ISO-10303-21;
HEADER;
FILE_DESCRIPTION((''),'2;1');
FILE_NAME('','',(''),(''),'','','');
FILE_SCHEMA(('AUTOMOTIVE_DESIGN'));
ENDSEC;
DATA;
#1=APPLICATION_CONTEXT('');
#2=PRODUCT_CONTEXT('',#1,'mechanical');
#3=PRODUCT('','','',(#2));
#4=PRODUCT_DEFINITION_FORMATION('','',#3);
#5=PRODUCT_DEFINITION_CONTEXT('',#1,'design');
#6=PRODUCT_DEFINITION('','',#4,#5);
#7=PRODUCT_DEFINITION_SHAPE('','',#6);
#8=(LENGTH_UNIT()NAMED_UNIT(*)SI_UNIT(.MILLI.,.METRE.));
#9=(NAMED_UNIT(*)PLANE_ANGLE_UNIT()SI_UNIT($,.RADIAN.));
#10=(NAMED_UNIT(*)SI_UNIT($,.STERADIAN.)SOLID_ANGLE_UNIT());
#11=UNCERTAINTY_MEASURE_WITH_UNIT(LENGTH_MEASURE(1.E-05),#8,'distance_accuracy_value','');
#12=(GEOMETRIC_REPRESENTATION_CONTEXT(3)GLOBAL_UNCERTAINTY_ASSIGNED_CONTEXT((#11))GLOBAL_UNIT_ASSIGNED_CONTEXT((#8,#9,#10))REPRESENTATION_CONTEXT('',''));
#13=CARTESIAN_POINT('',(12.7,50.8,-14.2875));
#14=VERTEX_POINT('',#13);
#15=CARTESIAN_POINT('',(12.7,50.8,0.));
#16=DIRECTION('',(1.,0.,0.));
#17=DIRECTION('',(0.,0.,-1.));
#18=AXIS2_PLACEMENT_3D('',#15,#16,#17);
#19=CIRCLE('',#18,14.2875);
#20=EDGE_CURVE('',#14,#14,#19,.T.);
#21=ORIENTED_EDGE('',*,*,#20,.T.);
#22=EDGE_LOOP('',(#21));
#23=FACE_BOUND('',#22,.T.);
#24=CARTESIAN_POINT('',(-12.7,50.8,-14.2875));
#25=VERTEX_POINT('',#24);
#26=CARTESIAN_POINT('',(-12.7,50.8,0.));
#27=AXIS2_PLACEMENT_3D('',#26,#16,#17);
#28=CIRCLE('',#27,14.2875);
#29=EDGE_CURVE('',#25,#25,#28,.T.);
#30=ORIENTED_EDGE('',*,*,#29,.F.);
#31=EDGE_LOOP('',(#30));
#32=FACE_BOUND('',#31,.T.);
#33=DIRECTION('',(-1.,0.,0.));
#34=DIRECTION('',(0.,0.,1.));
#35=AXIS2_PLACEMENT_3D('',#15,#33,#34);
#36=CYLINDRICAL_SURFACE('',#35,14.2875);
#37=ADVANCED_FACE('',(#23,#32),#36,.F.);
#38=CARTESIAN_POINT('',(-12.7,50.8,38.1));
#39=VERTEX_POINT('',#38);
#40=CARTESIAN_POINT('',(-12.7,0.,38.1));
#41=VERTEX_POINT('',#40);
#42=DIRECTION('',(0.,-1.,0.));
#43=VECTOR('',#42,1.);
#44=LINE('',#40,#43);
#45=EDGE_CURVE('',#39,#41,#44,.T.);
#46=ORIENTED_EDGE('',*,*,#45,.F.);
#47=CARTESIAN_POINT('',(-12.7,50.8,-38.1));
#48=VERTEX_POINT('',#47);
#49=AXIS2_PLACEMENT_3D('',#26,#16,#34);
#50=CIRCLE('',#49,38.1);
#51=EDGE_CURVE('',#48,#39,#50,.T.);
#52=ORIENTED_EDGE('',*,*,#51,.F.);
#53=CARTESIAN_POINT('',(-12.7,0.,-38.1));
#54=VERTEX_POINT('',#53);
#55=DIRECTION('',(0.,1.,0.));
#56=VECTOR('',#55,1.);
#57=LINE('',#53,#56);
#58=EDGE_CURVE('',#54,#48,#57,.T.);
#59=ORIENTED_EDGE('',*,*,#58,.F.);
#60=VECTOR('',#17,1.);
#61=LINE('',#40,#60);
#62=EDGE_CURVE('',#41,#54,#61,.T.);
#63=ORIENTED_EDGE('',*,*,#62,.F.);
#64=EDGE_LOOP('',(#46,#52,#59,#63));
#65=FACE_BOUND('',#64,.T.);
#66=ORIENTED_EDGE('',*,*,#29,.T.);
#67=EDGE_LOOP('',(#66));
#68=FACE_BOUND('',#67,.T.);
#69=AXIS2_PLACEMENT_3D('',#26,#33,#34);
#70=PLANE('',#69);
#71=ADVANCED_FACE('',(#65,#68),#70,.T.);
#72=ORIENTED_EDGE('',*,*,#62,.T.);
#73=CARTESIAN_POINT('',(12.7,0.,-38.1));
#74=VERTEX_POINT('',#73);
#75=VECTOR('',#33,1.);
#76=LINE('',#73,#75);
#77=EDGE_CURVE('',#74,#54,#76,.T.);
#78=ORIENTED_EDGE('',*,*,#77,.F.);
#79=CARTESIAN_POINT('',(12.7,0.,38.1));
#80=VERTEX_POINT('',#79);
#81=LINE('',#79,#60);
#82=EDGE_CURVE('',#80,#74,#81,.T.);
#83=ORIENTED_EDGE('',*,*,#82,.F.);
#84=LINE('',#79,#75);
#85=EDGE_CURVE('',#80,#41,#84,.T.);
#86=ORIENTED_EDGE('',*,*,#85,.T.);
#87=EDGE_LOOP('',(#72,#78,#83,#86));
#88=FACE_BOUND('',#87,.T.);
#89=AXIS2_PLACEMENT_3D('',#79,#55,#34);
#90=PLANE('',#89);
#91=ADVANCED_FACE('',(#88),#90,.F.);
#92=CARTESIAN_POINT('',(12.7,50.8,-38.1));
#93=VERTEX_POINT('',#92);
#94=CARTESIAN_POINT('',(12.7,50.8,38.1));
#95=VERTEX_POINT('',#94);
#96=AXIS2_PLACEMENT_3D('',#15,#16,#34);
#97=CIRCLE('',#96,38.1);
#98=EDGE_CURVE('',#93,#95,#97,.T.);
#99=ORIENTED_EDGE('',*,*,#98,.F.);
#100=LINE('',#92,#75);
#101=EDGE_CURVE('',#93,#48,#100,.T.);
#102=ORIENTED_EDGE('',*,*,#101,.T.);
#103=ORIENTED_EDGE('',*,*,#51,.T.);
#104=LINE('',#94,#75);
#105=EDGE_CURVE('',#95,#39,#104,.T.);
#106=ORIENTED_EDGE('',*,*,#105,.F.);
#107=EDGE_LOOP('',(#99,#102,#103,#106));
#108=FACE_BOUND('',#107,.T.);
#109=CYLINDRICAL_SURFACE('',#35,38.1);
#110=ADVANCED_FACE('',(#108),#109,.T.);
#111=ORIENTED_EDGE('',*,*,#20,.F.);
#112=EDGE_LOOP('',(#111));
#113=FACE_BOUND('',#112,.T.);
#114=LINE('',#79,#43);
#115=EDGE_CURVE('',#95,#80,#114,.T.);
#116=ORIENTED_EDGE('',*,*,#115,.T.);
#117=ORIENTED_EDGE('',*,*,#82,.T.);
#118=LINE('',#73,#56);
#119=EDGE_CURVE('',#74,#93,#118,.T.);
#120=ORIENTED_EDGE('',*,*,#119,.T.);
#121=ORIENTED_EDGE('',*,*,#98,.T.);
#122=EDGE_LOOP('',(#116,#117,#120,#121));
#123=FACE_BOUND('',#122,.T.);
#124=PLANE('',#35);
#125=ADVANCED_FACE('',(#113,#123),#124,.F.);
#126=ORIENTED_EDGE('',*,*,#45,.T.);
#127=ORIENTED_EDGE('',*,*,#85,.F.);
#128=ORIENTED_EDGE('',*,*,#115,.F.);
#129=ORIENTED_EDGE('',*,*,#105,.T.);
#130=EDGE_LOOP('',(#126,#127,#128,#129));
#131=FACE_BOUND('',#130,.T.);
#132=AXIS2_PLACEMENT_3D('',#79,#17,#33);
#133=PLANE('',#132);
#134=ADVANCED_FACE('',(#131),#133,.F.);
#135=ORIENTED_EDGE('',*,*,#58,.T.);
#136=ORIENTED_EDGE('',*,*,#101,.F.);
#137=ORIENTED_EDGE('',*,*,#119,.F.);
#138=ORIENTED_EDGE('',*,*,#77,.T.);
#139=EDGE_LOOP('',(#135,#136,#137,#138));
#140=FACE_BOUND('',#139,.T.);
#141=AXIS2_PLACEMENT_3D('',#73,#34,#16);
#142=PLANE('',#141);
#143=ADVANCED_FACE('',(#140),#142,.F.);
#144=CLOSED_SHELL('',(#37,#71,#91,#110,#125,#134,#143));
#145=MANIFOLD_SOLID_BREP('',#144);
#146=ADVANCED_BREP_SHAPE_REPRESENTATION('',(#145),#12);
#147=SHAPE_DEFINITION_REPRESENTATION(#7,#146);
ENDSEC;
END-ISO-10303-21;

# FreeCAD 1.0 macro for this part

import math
import FreeCAD as App
import Part
import Sketcher
Q = App.Units.Quantity

doc = App.newDocument("Part")
body = doc.addObject("PartDesign::Body", "Body")

sketch1 = body.newObject("Sketcher::SketchObject", "Sketch")
sketch1.AttachmentSupport = (doc.getObject("YZ_Plane"), [""])
sketch1.MapMode = "FlatFace"
sketch1.addGeometry(Part.LineSegment(App.Vector(0, 38.1, 0), App.Vector(0, -38.1, 0)), False)
sketch1.addGeometry(Part.LineSegment(App.Vector(0, -38.1, 0), App.Vector(50.8, -38.1, 0)), False)
sketch1.addGeometry(Part.ArcOfCircle(Part.Circle(App.Vector(50.8, 0, 0), App.Vector(0, 0, 1), 38.1), math.radians(-90), math.radians(90)), False)
sketch1.addGeometry(Part.LineSegment(App.Vector(50.8, 38.1, 0), App.Vector(0, 38.1, 0)), False)
sketch1.addGeometry(Part.Circle(App.Vector(50.8, 0, 0), App.Vector(0, 0, 1), 14.2875), False)
sketch1.addConstraint(Sketcher.Constraint("Coincident", 0, 2, 1, 1))
sketch1.addConstraint(Sketcher.Constraint("Tangent", 1, 2, 2, 1))
sketch1.addConstraint(Sketcher.Constraint("Tangent", 2, 2, 3, 1))
sketch1.addConstraint(Sketcher.Constraint("Coincident", 3, 2, 0, 1))
sketch1.addConstraint(Sketcher.Constraint("Vertical", 0))
sketch1.addConstraint(Sketcher.Constraint("Horizontal", 1))
sketch1.addConstraint(Sketcher.Constraint("Horizontal", 3))
sketch1.addConstraint(Sketcher.Constraint("Coincident", 4, 3, 2, 3))
sketch1.addConstraint(Sketcher.Constraint("Symmetric", 0, 2, 3, 2, -1, 1))
sketch1.addConstraint(Sketcher.Constraint("Radius", 2, Q("1.5 in")))
sketch1.addConstraint(Sketcher.Constraint("DistanceX", 1, 1, 1, 2, Q("2 in")))
sketch1.addConstraint(Sketcher.Constraint("Diameter", 4, Q("1.125 in")))
pad1 = body.newObject("PartDesign::Pad", "Pad")
pad1.Profile = sketch1
pad1.Length = Q("1 in")
pad1.Midplane = True

doc.recompute()
